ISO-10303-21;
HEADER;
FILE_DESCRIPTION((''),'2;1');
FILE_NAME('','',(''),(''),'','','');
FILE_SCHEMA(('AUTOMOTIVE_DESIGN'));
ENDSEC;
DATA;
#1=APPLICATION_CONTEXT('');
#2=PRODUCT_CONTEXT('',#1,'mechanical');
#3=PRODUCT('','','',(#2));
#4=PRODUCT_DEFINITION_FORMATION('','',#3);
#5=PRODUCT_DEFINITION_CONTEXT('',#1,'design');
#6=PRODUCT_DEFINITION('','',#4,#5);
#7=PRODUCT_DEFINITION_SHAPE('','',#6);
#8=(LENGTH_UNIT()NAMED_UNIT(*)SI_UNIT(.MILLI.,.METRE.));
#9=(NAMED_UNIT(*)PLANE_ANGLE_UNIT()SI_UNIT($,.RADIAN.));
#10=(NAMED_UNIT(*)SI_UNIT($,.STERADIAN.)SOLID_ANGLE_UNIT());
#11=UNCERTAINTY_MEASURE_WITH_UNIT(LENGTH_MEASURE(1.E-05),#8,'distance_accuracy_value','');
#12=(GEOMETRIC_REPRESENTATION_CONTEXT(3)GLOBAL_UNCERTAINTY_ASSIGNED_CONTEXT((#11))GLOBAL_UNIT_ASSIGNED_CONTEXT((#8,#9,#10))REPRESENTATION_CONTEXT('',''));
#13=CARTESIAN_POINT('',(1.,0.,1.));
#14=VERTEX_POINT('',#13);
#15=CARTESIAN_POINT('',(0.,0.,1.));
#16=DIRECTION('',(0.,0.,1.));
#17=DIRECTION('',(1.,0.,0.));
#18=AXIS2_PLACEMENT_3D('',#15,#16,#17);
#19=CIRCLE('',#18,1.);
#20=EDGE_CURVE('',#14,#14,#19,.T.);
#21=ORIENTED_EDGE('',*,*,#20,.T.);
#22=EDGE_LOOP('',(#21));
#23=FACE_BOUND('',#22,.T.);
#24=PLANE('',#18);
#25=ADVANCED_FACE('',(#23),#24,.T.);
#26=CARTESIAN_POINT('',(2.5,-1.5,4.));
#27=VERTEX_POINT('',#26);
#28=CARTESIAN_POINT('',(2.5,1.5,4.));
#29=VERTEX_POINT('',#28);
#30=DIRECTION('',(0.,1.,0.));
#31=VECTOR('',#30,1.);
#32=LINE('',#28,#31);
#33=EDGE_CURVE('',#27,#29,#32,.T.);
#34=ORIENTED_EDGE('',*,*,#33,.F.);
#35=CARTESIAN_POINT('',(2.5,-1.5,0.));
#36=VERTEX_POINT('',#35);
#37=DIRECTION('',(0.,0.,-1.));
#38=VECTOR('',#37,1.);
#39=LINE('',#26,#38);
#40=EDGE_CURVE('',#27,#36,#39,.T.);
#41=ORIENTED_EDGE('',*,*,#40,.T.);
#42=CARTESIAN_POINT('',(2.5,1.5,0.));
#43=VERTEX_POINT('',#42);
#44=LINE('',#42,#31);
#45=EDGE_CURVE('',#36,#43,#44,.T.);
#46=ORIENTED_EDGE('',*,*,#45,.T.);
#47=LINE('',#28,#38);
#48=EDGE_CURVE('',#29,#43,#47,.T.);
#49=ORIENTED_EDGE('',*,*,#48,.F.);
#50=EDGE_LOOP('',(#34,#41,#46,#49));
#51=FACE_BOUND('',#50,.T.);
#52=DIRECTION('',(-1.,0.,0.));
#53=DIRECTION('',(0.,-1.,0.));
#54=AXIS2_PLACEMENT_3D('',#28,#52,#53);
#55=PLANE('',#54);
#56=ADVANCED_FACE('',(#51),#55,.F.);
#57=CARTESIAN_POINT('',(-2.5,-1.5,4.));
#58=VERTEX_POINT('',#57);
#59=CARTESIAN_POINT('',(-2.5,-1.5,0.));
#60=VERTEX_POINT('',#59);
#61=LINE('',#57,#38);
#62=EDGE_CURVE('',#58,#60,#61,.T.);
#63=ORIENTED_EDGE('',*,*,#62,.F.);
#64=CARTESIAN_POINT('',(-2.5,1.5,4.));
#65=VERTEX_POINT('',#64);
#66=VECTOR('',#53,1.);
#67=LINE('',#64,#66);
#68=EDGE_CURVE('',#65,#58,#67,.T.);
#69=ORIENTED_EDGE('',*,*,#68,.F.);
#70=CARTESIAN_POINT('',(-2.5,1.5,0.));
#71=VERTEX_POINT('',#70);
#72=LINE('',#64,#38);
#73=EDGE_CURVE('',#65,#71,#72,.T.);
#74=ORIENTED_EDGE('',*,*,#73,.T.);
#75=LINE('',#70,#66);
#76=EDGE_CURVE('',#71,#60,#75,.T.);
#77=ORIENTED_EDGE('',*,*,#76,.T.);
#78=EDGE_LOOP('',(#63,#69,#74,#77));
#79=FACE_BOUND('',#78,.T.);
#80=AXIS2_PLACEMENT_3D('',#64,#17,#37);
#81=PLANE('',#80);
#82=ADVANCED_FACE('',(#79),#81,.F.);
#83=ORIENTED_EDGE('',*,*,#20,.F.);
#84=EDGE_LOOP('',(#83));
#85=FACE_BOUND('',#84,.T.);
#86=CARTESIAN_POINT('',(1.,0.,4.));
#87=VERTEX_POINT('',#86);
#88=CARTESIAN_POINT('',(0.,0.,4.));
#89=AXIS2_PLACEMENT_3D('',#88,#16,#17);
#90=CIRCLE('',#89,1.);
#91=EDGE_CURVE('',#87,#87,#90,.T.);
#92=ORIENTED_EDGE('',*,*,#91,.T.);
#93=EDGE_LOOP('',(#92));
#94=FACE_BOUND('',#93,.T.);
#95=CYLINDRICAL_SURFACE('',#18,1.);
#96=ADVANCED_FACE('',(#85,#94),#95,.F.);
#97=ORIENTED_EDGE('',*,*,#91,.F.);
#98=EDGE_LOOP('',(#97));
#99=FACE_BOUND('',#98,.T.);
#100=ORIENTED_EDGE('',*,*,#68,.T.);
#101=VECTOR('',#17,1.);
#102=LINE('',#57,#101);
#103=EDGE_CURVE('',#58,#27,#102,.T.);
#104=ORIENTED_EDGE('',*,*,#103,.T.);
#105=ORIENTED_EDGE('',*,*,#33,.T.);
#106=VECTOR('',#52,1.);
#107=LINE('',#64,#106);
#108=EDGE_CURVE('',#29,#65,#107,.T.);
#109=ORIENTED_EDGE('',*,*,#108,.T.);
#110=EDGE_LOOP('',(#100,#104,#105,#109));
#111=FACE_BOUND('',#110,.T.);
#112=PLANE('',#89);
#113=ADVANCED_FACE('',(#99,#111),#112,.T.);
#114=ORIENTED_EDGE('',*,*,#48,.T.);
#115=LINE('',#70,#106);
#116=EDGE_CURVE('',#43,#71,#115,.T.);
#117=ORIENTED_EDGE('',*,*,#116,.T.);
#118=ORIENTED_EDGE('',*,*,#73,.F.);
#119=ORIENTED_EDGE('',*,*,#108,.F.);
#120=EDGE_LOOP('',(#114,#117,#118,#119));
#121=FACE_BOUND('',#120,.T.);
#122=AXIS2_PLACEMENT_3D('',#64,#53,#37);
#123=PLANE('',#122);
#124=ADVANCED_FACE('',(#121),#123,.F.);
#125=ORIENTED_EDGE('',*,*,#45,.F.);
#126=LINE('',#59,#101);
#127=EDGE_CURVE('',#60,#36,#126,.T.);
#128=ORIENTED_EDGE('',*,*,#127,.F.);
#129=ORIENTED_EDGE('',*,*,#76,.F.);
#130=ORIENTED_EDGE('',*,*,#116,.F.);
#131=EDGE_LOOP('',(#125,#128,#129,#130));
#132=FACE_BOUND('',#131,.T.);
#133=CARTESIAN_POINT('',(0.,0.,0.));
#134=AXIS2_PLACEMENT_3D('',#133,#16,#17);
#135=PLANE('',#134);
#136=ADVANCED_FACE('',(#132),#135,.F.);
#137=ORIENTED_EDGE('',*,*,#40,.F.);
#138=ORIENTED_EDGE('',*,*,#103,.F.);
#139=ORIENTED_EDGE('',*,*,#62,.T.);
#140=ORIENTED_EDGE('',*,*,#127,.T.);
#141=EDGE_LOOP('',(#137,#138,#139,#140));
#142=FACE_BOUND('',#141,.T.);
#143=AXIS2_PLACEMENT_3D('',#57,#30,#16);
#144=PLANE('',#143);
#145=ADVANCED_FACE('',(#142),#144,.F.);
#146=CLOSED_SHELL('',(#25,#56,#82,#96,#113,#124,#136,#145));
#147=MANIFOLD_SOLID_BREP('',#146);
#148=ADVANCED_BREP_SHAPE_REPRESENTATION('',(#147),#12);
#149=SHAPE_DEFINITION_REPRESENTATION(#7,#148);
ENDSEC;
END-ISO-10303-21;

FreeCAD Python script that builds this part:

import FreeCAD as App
import Part
import Sketcher
Q = App.Units.Quantity

doc = App.newDocument("Part")
body = doc.addObject("PartDesign::Body", "Body")

# Sketch on XY plane
sketch1 = doc.addObject("Sketcher::SketchObject", "Sketch")
body.addObject(sketch1)
sketch1.AttachmentSupport = (doc.XY_Plane, [""])
sketch1.MapMode = "FlatFace"
sketch1.addGeometry([
    Part.LineSegment(App.Vector(-2.5, 1.5, 0), App.Vector(-2.5, -1.5, 0)),
    Part.LineSegment(App.Vector(-2.5, -1.5, 0), App.Vector(2.5, -1.5, 0)),
    Part.LineSegment(App.Vector(2.5, -1.5, 0), App.Vector(2.5, 1.5, 0)),
    Part.LineSegment(App.Vector(2.5, 1.5, 0), App.Vector(-2.5, 1.5, 0)),
], False)
sketch1.addConstraint([
    Sketcher.Constraint("Coincident", 0, 2, 1, 1),
    Sketcher.Constraint("Coincident", 1, 2, 2, 1),
    Sketcher.Constraint("Coincident", 2, 2, 3, 1),
    Sketcher.Constraint("Coincident", 3, 2, 0, 1),
    Sketcher.Constraint("Vertical", 0),
    Sketcher.Constraint("Horizontal", 1),
    Sketcher.Constraint("Vertical", 2),
    Sketcher.Constraint("Horizontal", 3),
    Sketcher.Constraint("Symmetric", 0, 2, 2, 2, -1, 1),
    Sketcher.Constraint("DistanceX", 1, 1, 1, 2, Q("5 mm")),
    Sketcher.Constraint("DistanceY", 0, 2, 0, 1, Q("3 mm")),
])
pad1 = doc.addObject("PartDesign::Pad", "Pad")
body.addObject(pad1)
pad1.Profile = sketch1
pad1.Length = 4

# Sketch on XY plane
sketch2 = doc.addObject("Sketcher::SketchObject", "Sketch001")
body.addObject(sketch2)
sketch2.AttachmentSupport = (doc.XY_Plane, [""])
sketch2.MapMode = "FlatFace"
sketch2.AttachmentOffset = App.Placement(App.Vector(0, 0, 4), App.Rotation())
sketch2.addGeometry(Part.Circle(App.Vector(0, 0, 0), App.Vector(0, 0, 1), 1), False)
sketch2.addConstraint([
    Sketcher.Constraint("Coincident", 0, 3, -1, 1),
    Sketcher.Constraint("Diameter", 0, Q("2 mm")),
])
pocket1 = doc.addObject("PartDesign::Pocket", "Pocket")
body.addObject(pocket1)
pocket1.Profile = sketch2
pocket1.Length = 3

doc.recompute()
